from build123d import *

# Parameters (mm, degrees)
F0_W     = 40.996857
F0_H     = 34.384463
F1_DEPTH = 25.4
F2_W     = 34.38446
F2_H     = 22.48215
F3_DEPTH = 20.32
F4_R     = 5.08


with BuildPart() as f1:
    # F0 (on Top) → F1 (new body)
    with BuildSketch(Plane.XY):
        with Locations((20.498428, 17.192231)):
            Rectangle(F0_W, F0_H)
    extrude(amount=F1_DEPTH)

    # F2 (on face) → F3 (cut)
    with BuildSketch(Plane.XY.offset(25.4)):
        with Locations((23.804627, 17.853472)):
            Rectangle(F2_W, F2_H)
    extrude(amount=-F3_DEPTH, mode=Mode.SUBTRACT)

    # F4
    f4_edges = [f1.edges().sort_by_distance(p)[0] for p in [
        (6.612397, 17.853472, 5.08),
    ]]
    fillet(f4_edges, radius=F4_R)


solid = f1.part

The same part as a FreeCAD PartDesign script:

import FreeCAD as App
import Part
import Sketcher
from FreeCAD import Vector
Q = App.Units.Quantity


def edges_at(feature, points):
    """Names of the edges that pass closest to the given points."""
    edges = feature.Shape.Edges
    near = lambda p: min(range(len(edges)), key=lambda i: edges[i].distToShape(Part.Vertex(*p))[0])
    return sorted({f"Edge{near(p) + 1}" for p in points})

doc = App.newDocument("Part")
body = doc.addObject("PartDesign::Body", "Body")

sketch1 = doc.addObject("Sketcher::SketchObject", "Sketch")
body.addObject(sketch1)
sketch1.AttachmentSupport = (doc.XY_Plane, [""])
sketch1.MapMode = "FlatFace"
sketch1.addGeometry(Part.LineSegment(Vector(0, 34, 0), Vector(0, 0, 0)), False)
sketch1.addGeometry(Part.LineSegment(Vector(0, 0, 0), Vector(41, 0, 0)), False)
sketch1.addGeometry(Part.LineSegment(Vector(41, 0, 0), Vector(41, 34, 0)), False)
sketch1.addGeometry(Part.LineSegment(Vector(41, 34, 0), Vector(0, 34, 0)), False)
sketch1.addConstraint(Sketcher.Constraint("Coincident", 0, 2, 1, 1))
sketch1.addConstraint(Sketcher.Constraint("Coincident", 1, 2, 2, 1))
sketch1.addConstraint(Sketcher.Constraint("Coincident", 2, 2, 3, 1))
sketch1.addConstraint(Sketcher.Constraint("Coincident", 3, 2, 0, 1))
sketch1.addConstraint(Sketcher.Constraint("Vertical", 0))
sketch1.addConstraint(Sketcher.Constraint("Horizontal", 1))
sketch1.addConstraint(Sketcher.Constraint("Vertical", 2))
sketch1.addConstraint(Sketcher.Constraint("Horizontal", 3))
sketch1.addConstraint(Sketcher.Constraint("Coincident", 0, 2, -1, 1))
sketch1.addConstraint(Sketcher.Constraint("DistanceX", 1, 1, 1, 2, Q("40.996857 mm")))
sketch1.addConstraint(Sketcher.Constraint("DistanceY", 0, 2, 0, 1, Q("34.384463 mm")))
pad1 = doc.addObject("PartDesign::Pad", "Pad")
body.addObject(pad1)
pad1.Profile = sketch1
pad1.Length = Q("1 in")

sketch2 = doc.addObject("Sketcher::SketchObject", "Sketch001")
body.addObject(sketch2)
sketch2.AttachmentSupport = (doc.XY_Plane, [""])
sketch2.MapMode = "FlatFace"
sketch2.AttachmentOffset = App.Placement(Vector(0, 0, 1 * 25.4), App.Rotation())
sketch2.addGeometry(Part.LineSegment(Vector(7, 29, 0), Vector(7, 7, 0)), False)
sketch2.addGeometry(Part.LineSegment(Vector(7, 7, 0), Vector(41, 7, 0)), False)
sketch2.addGeometry(Part.LineSegment(Vector(41, 7, 0), Vector(41, 29, 0)), False)
sketch2.addGeometry(Part.LineSegment(Vector(41, 29, 0), Vector(7, 29, 0)), False)
sketch2.addConstraint(Sketcher.Constraint("Coincident", 0, 2, 1, 1))
sketch2.addConstraint(Sketcher.Constraint("Coincident", 1, 2, 2, 1))
sketch2.addConstraint(Sketcher.Constraint("Coincident", 2, 2, 3, 1))
sketch2.addConstraint(Sketcher.Constraint("Coincident", 3, 2, 0, 1))
sketch2.addConstraint(Sketcher.Constraint("Vertical", 0))
sketch2.addConstraint(Sketcher.Constraint("Horizontal", 1))
sketch2.addConstraint(Sketcher.Constraint("Vertical", 2))
sketch2.addConstraint(Sketcher.Constraint("Horizontal", 3))
sketch2.addConstraint(Sketcher.Constraint("DistanceX", 1, 1, 1, 2, Q("34.38446 mm")))
sketch2.addConstraint(Sketcher.Constraint("DistanceY", 0, 2, 0, 1, Q("22.48215 mm")))
sketch2.addConstraint(Sketcher.Constraint("DistanceX", -1, 1, 0, 2, Q("6.612397 mm")))
sketch2.addConstraint(Sketcher.Constraint("DistanceY", -1, 1, 0, 2, Q("6.612397 mm")))
pocket1 = doc.addObject("PartDesign::Pocket", "Pocket")
body.addObject(pocket1)
pocket1.Profile = sketch2
pocket1.Length = Q("0.8 in")
doc.recompute()

fillet = doc.addObject("PartDesign::Fillet", "Fillet")
body.addObject(fillet)
fillet.Base = (pocket1, edges_at(pocket1, [(6.612, 17.853, 5.08)]))
fillet.Radius = Q("0.2 in")

doc.recompute()
